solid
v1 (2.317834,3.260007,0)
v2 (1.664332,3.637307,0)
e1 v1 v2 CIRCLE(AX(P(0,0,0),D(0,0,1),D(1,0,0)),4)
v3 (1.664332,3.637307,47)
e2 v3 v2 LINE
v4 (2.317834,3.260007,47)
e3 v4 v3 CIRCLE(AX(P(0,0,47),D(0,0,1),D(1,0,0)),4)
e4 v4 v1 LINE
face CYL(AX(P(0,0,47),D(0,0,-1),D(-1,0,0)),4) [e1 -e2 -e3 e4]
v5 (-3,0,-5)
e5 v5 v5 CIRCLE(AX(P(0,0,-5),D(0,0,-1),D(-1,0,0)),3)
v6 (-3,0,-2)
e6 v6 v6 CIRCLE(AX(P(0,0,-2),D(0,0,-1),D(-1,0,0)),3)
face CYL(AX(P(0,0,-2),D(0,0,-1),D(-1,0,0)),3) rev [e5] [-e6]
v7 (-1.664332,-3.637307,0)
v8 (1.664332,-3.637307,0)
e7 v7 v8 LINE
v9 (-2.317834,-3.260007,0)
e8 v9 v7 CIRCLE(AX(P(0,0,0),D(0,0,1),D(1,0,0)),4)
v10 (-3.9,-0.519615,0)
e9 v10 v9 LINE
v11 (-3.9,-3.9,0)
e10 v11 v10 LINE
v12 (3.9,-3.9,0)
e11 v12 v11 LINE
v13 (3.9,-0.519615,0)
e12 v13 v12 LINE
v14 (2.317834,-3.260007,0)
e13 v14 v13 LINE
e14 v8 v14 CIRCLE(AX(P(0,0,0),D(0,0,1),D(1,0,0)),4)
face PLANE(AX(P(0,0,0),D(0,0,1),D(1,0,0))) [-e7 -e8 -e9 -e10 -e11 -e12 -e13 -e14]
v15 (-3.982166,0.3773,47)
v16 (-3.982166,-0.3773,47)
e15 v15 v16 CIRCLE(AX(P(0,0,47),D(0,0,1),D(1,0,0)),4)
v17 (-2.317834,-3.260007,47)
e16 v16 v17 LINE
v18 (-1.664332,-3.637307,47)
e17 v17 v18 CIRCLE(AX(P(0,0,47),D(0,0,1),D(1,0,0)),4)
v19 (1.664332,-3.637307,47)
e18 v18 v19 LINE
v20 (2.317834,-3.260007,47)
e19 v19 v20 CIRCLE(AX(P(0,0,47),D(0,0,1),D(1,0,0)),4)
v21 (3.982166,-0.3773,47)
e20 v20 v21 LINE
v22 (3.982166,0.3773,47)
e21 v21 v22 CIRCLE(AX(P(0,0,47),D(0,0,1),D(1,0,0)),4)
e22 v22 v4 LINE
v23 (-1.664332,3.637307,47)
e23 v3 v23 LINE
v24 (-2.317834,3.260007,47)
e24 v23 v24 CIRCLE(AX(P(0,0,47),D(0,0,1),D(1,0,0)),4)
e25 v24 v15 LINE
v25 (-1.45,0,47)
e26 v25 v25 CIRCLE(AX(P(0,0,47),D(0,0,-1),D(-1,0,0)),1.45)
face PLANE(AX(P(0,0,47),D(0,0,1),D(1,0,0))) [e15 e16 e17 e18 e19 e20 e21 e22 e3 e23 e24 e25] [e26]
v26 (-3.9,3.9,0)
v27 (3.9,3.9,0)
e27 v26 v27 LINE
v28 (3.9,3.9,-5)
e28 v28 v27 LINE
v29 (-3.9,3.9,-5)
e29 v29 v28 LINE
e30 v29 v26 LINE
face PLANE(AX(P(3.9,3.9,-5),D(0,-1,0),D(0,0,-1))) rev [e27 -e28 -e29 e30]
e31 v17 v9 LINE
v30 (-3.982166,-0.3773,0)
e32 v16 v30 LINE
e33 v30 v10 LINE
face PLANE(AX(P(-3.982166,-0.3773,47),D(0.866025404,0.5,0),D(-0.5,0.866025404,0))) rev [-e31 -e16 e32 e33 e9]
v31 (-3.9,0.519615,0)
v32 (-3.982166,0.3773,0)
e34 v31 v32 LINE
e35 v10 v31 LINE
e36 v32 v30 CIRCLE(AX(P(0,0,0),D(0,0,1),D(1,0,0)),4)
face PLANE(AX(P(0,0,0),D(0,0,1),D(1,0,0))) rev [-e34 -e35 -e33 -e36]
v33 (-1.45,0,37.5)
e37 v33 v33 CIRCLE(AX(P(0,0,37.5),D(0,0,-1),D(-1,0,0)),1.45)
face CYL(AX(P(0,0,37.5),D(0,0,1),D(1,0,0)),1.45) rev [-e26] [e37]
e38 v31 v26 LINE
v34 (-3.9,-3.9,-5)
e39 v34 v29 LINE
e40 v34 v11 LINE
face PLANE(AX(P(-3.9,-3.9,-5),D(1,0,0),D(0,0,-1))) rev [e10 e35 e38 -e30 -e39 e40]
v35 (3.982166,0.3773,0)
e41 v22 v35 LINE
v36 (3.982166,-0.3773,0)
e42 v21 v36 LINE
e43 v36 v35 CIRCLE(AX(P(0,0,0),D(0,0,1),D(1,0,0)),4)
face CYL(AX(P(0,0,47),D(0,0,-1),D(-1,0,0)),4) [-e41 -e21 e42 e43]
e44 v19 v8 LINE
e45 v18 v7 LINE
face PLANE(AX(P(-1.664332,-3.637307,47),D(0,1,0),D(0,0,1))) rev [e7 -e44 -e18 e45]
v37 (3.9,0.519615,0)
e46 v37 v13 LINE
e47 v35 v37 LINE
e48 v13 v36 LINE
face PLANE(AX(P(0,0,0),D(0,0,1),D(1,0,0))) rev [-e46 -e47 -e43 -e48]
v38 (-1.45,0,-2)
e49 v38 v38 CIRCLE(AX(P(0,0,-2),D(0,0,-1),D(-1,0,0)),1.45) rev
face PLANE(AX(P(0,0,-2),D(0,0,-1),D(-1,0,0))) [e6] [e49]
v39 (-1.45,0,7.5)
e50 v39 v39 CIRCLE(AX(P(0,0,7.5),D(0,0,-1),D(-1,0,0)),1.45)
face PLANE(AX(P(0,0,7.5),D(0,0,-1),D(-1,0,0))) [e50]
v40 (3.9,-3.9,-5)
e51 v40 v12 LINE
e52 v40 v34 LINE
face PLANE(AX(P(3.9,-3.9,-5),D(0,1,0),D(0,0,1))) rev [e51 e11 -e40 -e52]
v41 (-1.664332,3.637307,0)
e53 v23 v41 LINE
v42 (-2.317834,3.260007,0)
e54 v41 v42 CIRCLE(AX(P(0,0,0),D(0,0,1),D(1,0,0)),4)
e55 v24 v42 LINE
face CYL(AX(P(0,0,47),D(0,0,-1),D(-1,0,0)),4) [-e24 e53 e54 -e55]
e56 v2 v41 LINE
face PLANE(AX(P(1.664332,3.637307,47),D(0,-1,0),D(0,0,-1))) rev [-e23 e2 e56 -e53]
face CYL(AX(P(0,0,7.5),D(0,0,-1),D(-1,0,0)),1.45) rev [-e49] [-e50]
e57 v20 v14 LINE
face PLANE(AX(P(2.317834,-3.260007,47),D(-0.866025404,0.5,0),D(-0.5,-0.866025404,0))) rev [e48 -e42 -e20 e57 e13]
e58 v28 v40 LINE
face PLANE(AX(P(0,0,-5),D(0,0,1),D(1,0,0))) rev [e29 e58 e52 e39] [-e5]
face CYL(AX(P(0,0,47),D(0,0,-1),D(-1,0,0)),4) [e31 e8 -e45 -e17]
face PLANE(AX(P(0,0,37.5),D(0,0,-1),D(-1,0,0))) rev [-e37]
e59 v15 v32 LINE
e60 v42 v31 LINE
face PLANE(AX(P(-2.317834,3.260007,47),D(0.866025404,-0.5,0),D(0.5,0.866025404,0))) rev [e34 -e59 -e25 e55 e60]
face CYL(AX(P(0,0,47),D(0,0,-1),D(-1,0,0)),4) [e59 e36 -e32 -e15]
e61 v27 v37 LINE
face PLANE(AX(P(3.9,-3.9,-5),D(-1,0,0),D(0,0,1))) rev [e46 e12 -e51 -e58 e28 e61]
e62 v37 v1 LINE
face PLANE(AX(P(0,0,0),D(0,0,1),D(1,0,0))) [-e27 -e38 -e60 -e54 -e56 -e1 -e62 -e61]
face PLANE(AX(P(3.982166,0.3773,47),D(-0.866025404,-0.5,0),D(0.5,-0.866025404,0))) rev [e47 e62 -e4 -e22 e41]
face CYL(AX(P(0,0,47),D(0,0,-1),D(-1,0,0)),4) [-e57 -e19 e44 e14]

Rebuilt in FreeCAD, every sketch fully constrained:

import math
import FreeCAD as App
import Part
import Sketcher

V = App.Vector
Q = App.Units.Quantity

doc = App.newDocument("Part")
body = doc.addObject("PartDesign::Body", "Body")

sketch1 = doc.addObject("Sketcher::SketchObject", "Sketch")
body.addObject(sketch1)
sketch1.AttachmentSupport = (doc.XY_Plane, [""])
sketch1.MapMode = "FlatFace"
sketch1.addGeometry([
    Part.LineSegment(V(1.7, 3.6, 0), V(-1.7, 3.6, 0)),
    Part.ArcOfCircle(Part.Circle(V(0, 0, 0), V(0, 0, 1), 4), math.radians(114.59), math.radians(125.41)),
    Part.LineSegment(V(-2.3, 3.3, 0), V(-4, 0.4, 0)),
    Part.ArcOfCircle(Part.Circle(V(0, 0, 0), V(0, 0, 1), 4), math.radians(174.59), math.radians(185.41)),
    Part.LineSegment(V(-4, -0.4, 0), V(-2.3, -3.3, 0)),
    Part.ArcOfCircle(Part.Circle(V(0, 0, 0), V(0, 0, 1), 4), math.radians(-125.41), math.radians(-114.59)),
    Part.LineSegment(V(-1.7, -3.6, 0), V(1.7, -3.6, 0)),
    Part.ArcOfCircle(Part.Circle(V(0, 0, 0), V(0, 0, 1), 4), math.radians(-65.41), math.radians(-54.59)),
    Part.LineSegment(V(2.3, -3.3, 0), V(4, -0.4, 0)),
    Part.ArcOfCircle(Part.Circle(V(0, 0, 0), V(0, 0, 1), 4), math.radians(-5.41), math.radians(5.41)),
    Part.LineSegment(V(4, 0.4, 0), V(2.3, 3.3, 0)),
    Part.ArcOfCircle(Part.Circle(V(0, 0, 0), V(0, 0, 1), 4), math.radians(54.59), math.radians(65.41)),
], False)
sketch1.addConstraint([
    Sketcher.Constraint("Coincident", 0, 2, 1, 1),
    Sketcher.Constraint("Coincident", 1, 2, 2, 1),
    Sketcher.Constraint("Coincident", 2, 2, 3, 1),
    Sketcher.Constraint("Coincident", 3, 2, 4, 1),
    Sketcher.Constraint("Coincident", 4, 2, 5, 1),
    Sketcher.Constraint("Coincident", 5, 2, 6, 1),
    Sketcher.Constraint("Coincident", 6, 2, 7, 1),
    Sketcher.Constraint("Coincident", 7, 2, 8, 1),
    Sketcher.Constraint("Coincident", 8, 2, 9, 1),
    Sketcher.Constraint("Coincident", 9, 2, 10, 1),
    Sketcher.Constraint("Coincident", 10, 2, 11, 1),
    Sketcher.Constraint("Coincident", 11, 2, 0, 1),
    Sketcher.Constraint("Horizontal", 0),
    Sketcher.Constraint("Horizontal", 6),
    Sketcher.Constraint("Coincident", 1, 3, -1, 1),
    Sketcher.Constraint("Coincident", 3, 3, -1, 1),
    Sketcher.Constraint("Coincident", 5, 3, -1, 1),
    Sketcher.Constraint("Coincident", 7, 3, -1, 1),
    Sketcher.Constraint("Coincident", 9, 3, -1, 1),
    Sketcher.Constraint("Coincident", 11, 3, -1, 1),
    Sketcher.Constraint("Equal", 1, 3),
    Sketcher.Constraint("Equal", 3, 5),
    Sketcher.Constraint("Equal", 5, 7),
    Sketcher.Constraint("Equal", 7, 9),
    Sketcher.Constraint("Equal", 9, 11),
    Sketcher.Constraint("Parallel", 2, 8),
    Sketcher.Constraint("Parallel", 4, 10),
    Sketcher.Constraint("Horizontal", 4, 2, 7, 2),
    Sketcher.Constraint("Horizontal", 3, 2, 8, 2),
    Sketcher.Constraint("Horizontal", 2, 2, 9, 2),
    Sketcher.Constraint("Vertical", 2, 2, 3, 2),
    Sketcher.Constraint("Vertical", 0, 2, 5, 2),
    Sketcher.Constraint("Radius", 1, Q("4 mm")),
    Sketcher.Constraint("Angle", 2, Q("-120 deg")),
    Sketcher.Constraint("DistanceY", -1, 1, 2, 2, Q("0.3773 mm")),
    Sketcher.Constraint("DistanceY", 1, 2, 0, 2, Q("0.3773 mm")),
])
pad1 = doc.addObject("PartDesign::Pad", "Pad")
body.addObject(pad1)
pad1.Profile = sketch1
pad1.Length = 47

sketch2 = doc.addObject("Sketcher::SketchObject", "Sketch001")
body.addObject(sketch2)
sketch2.AttachmentSupport = (doc.XY_Plane, [""])
sketch2.MapMode = "FlatFace"
sketch2.addGeometry([
    Part.LineSegment(V(4, 4, 0), V(4, -4, 0)),
    Part.LineSegment(V(4, -4, 0), V(-4, -4, 0)),
    Part.LineSegment(V(-4, -4, 0), V(-4, 4, 0)),
    Part.LineSegment(V(-4, 4, 0), V(4, 4, 0)),
], False)
sketch2.addConstraint([
    Sketcher.Constraint("Coincident", 0, 2, 1, 1),
    Sketcher.Constraint("Coincident", 1, 2, 2, 1),
    Sketcher.Constraint("Coincident", 2, 2, 3, 1),
    Sketcher.Constraint("Coincident", 3, 2, 0, 1),
    Sketcher.Constraint("Vertical", 0),
    Sketcher.Constraint("Horizontal", 1),
    Sketcher.Constraint("Vertical", 2),
    Sketcher.Constraint("Horizontal", 3),
    Sketcher.Constraint("Symmetric", 0, 2, 2, 2, -1, 1),
    Sketcher.Constraint("Equal", 3, 0),
    Sketcher.Constraint("DistanceX", 1, 2, 1, 1, Q("7.8 mm")),
])
pad2 = doc.addObject("PartDesign::Pad", "Pad001")
body.addObject(pad2)
pad2.Profile = sketch2
pad2.Length = 5
pad2.Reversed = True

sketch3 = doc.addObject("Sketcher::SketchObject", "Sketch002")
body.addObject(sketch3)
sketch3.AttachmentSupport = (doc.XY_Plane, [""])
sketch3.MapMode = "FlatFace"
sketch3.AttachmentOffset = App.Placement(V(0, 0, -5), App.Rotation())
sketch3.addGeometry(Part.Circle(V(0, 0, 0), V(0, 0, 1), 1.4), False)
sketch3.addConstraint([
    Sketcher.Constraint("Coincident", 0, 3, -1, 1),
    Sketcher.Constraint("Diameter", 0, Q("2.9 mm")),
])
pocket1 = doc.addObject("PartDesign::Pocket", "Pocket")
body.addObject(pocket1)
pocket1.Profile = sketch3
pocket1.Length = 12.5
pocket1.Reversed = True

sketch4 = doc.addObject("Sketcher::SketchObject", "Sketch003")
body.addObject(sketch4)
sketch4.AttachmentSupport = (doc.XY_Plane, [""])
sketch4.MapMode = "FlatFace"
sketch4.AttachmentOffset = App.Placement(V(0, 0, -5), App.Rotation())
sketch4.addGeometry(Part.Circle(V(0, 0, 0), V(0, 0, 1), 3), False)
sketch4.addConstraint([
    Sketcher.Constraint("Coincident", 0, 3, -1, 1),
    Sketcher.Constraint("Diameter", 0, Q("6 mm")),
])
pocket2 = doc.addObject("PartDesign::Pocket", "Pocket001")
body.addObject(pocket2)
pocket2.Profile = sketch4
pocket2.Length = 3
pocket2.Reversed = True

sketch5 = doc.addObject("Sketcher::SketchObject", "Sketch004")
body.addObject(sketch5)
sketch5.AttachmentSupport = (doc.XY_Plane, [""])
sketch5.MapMode = "FlatFace"
sketch5.AttachmentOffset = App.Placement(V(0, 0, 37.5), App.Rotation())
sketch5.addGeometry(Part.Circle(V(0, 0, 0), V(0, 0, 1), 1.4), False)
sketch5.addConstraint([
    Sketcher.Constraint("Coincident", 0, 3, -1, 1),
    Sketcher.Constraint("Diameter", 0, Q("2.9 mm")),
])
pocket3 = doc.addObject("PartDesign::Pocket", "Pocket002")
body.addObject(pocket3)
pocket3.Profile = sketch5
pocket3.Length = 9.5
pocket3.Reversed = True

doc.recompute()
